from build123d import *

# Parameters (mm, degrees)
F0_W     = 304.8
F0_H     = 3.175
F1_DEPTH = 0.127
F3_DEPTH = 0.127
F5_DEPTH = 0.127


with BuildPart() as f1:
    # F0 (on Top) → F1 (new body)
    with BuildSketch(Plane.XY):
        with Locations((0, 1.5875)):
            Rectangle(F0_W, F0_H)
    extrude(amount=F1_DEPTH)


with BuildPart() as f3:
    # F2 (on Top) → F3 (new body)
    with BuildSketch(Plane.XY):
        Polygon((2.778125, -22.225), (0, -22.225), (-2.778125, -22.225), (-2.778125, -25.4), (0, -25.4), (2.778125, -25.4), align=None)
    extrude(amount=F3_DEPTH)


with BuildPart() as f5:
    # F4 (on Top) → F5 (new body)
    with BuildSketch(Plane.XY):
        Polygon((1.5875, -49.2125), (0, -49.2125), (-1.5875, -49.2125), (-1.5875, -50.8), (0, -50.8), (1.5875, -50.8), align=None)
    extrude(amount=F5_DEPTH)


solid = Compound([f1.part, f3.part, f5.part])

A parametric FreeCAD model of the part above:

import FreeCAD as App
import Part
import Sketcher
Q = App.Units.Quantity


def add_polygon(sketch, points):
    """Adds a closed chain of lines whose ends are joined by coincident constraints."""
    first, n = sketch.GeometryCount, len(points)
    for a, b in zip(points, points[1:] + points[:1]):
        sketch.addGeometry(Part.LineSegment(App.Vector(*a, 0), App.Vector(*b, 0)), False)
    for i in range(n):
        sketch.addConstraint(Sketcher.Constraint("Coincident", first + i, 2, first + (i + 1) % n, 1))

doc = App.newDocument("Part")
body = doc.addObject("PartDesign::Body", "Body")

sketch1 = body.newObject("Sketcher::SketchObject", "Sketch")
sketch1.AttachmentSupport = (doc.getObject("XY_Plane"), [""])
sketch1.MapMode = "FlatFace"
add_polygon(sketch1, [(-152.4, 3.175), (-152.4, 0), (152.4, 0), (152.4, 3.175)])
sketch1.addConstraint([
    Sketcher.Constraint("Vertical", 0),
    Sketcher.Constraint("Horizontal", 1),
    Sketcher.Constraint("Vertical", 2),
    Sketcher.Constraint("Horizontal", 3),
    Sketcher.Constraint("Symmetric", 0, 2, 1, 2, -1, 1),
    Sketcher.Constraint("DistanceX", 1, 1, 1, 2, Q("12 in")),
    Sketcher.Constraint("DistanceY", 0, 2, 0, 1, Q("0.125 in")),
])
pad1 = body.newObject("PartDesign::Pad", "Pad")
pad1.Profile = sketch1
pad1.Length = Q("0.005 in")
body2 = doc.addObject("PartDesign::Body", "Body001")

sketch2 = body2.newObject("Sketcher::SketchObject", "Sketch001")
sketch2.AttachmentSupport = (doc.getObject("XY_Plane001"), [""])
sketch2.MapMode = "FlatFace"
add_polygon(sketch2, [(2.778125, -22.225), (-2.778125, -22.225), (-2.778125, -25.4), (2.778125, -25.4)])
sketch2.addConstraint([
    Sketcher.Constraint("Horizontal", 0),
    Sketcher.Constraint("Vertical", 1),
    Sketcher.Constraint("Horizontal", 2),
    Sketcher.Constraint("Vertical", 3),
    Sketcher.Constraint("DistanceY", 1, 2, -1, 1, Q("1 in")),
    Sketcher.Constraint("DistanceX", 0, 2, 0, 1, Q("0.21875 in")),
    Sketcher.Constraint("DistanceY", 1, 2, 1, 1, Q("0.125 in")),
    Sketcher.Constraint("DistanceX", 0, 2, -1, 1, Q("0.109375 in")),
])
pad2 = body2.newObject("PartDesign::Pad", "Pad001")
pad2.Profile = sketch2
pad2.Length = Q("0.005 in")
body3 = doc.addObject("PartDesign::Body", "Body002")

sketch3 = body3.newObject("Sketcher::SketchObject", "Sketch002")
sketch3.AttachmentSupport = (doc.getObject("XY_Plane002"), [""])
sketch3.MapMode = "FlatFace"
add_polygon(sketch3, [(1.5875, -49.2125), (-1.5875, -49.2125), (-1.5875, -50.8), (1.5875, -50.8)])
sketch3.addConstraint([
    Sketcher.Constraint("Horizontal", 0),
    Sketcher.Constraint("Vertical", 1),
    Sketcher.Constraint("Horizontal", 2),
    Sketcher.Constraint("Vertical", 3),
    Sketcher.Constraint("DistanceY", 1, 2, -1, 1, Q("2 in")),
    Sketcher.Constraint("DistanceX", 0, 2, 0, 1, Q("0.125 in")),
    Sketcher.Constraint("DistanceY", 1, 2, 1, 1, Q("0.0625 in")),
    Sketcher.Constraint("DistanceX", 0, 2, -1, 1, Q("0.0625 in")),
])
pad3 = body3.newObject("PartDesign::Pad", "Pad002")
pad3.Profile = sketch3
pad3.Length = Q("0.005 in")

doc.recompute()
